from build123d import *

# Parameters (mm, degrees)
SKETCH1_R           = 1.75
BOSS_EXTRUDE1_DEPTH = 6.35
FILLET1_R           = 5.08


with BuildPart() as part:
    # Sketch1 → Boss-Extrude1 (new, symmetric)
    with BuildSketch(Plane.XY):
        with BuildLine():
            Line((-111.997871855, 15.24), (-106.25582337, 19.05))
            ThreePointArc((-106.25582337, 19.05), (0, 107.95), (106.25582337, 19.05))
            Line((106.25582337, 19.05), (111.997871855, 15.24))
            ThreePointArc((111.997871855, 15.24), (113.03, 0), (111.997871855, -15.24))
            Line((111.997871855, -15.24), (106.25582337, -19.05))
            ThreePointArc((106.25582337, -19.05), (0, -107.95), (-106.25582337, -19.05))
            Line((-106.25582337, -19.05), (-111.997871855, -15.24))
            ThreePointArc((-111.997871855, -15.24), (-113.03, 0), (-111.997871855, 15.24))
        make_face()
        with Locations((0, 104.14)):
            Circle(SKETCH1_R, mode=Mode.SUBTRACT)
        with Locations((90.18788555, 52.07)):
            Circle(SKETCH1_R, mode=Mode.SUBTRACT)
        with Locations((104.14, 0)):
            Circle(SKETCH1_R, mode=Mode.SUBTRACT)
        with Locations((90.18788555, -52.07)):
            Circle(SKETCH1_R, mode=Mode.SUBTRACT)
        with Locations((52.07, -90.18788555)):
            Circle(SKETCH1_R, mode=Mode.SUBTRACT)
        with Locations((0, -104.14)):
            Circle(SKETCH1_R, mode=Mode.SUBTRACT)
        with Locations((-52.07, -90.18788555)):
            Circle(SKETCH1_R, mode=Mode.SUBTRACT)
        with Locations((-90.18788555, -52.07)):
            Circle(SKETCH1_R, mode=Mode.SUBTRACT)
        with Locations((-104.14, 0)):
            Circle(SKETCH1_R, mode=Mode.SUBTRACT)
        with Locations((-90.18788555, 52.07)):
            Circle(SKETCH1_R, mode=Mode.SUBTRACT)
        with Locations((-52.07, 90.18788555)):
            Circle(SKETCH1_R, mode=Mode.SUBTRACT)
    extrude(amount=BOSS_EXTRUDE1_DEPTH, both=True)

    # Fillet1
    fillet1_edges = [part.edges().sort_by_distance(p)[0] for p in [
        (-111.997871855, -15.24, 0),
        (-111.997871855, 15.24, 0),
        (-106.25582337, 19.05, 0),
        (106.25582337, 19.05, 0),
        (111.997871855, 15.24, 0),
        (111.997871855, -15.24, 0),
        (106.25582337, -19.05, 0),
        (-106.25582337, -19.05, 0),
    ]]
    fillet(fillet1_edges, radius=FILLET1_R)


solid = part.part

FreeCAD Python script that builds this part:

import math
import FreeCAD as App
import Part
import Sketcher
from FreeCAD import Vector
Q = App.Units.Quantity


def edges_at(feature, points):
    """Names of the edges that pass closest to the given points."""
    edges = feature.Shape.Edges
    near = lambda p: min(range(len(edges)), key=lambda i: edges[i].distToShape(Part.Vertex(*p))[0])
    return sorted({f"Edge{near(p) + 1}" for p in points})

doc = App.newDocument("Part")
body = doc.addObject("PartDesign::Body", "Body")

sketch1 = body.newObject("Sketcher::SketchObject", "Sketch")
sketch1.AttachmentSupport = (doc.getObject("XY_Plane"), [""])
sketch1.MapMode = "FlatFace"
sketch1.addGeometry([
    Part.LineSegment(Vector(-106.3, 19.1, 0), Vector(-112, 15.2, 0)),
    Part.ArcOfCircle(Part.Circle(Vector(0, 0, 0), Vector(0, 0, 1), 113), math.radians(172.25), math.radians(187.75)),
    Part.LineSegment(Vector(-112, -15.2, 0), Vector(-106.3, -19.1, 0)),
    Part.ArcOfCircle(Part.Circle(Vector(0, 0, 0), Vector(0, 0, 1), 108), math.radians(-170), math.radians(-10)),
    Part.LineSegment(Vector(106.3, -19.1, 0), Vector(112, -15.2, 0)),
    Part.ArcOfCircle(Part.Circle(Vector(0, 0, 0), Vector(0, 0, 1), 113), math.radians(-7.75), math.radians(7.75)),
    Part.LineSegment(Vector(112, 15.2, 0), Vector(106.3, 19.1, 0)),
    Part.ArcOfCircle(Part.Circle(Vector(0, 0, 0), Vector(0, 0, 1), 108), math.radians(10), math.radians(170)),
    Part.Circle(Vector(52.1, -90.2, 0), Vector(0, 0, 1), 1.8),
    Part.Circle(Vector(0, -104.1, 0), Vector(0, 0, 1), 1.8),
    Part.Circle(Vector(90.2, -52.1, 0), Vector(0, 0, 1), 1.8),
    Part.Circle(Vector(104.1, 0, 0), Vector(0, 0, 1), 1.8),
    Part.Circle(Vector(-52.1, -90.2, 0), Vector(0, 0, 1), 1.8),
    Part.Circle(Vector(-90.2, -52.1, 0), Vector(0, 0, 1), 1.8),
    Part.Circle(Vector(-104.1, 0, 0), Vector(0, 0, 1), 1.8),
    Part.Circle(Vector(90.2, 52.1, 0), Vector(0, 0, 1), 1.8),
    Part.Circle(Vector(0, 104.1, 0), Vector(0, 0, 1), 1.8),
    Part.Circle(Vector(-90.2, 52.1, 0), Vector(0, 0, 1), 1.8),
    Part.Circle(Vector(-52.1, 90.2, 0), Vector(0, 0, 1), 1.8),
], False)
sketch1.addConstraint([
    Sketcher.Constraint("Coincident", 0, 2, 1, 1),
    Sketcher.Constraint("Coincident", 1, 2, 2, 1),
    Sketcher.Constraint("Coincident", 2, 2, 3, 1),
    Sketcher.Constraint("Coincident", 3, 2, 4, 1),
    Sketcher.Constraint("Coincident", 4, 2, 5, 1),
    Sketcher.Constraint("Coincident", 5, 2, 6, 1),
    Sketcher.Constraint("Coincident", 6, 2, 7, 1),
    Sketcher.Constraint("Coincident", 7, 2, 0, 1),
    Sketcher.Constraint("Coincident", 1, 3, -1, 1),
    Sketcher.Constraint("Coincident", 3, 3, -1, 1),
    Sketcher.Constraint("Coincident", 5, 3, -1, 1),
    Sketcher.Constraint("Coincident", 7, 3, -1, 1),
    Sketcher.Constraint("Equal", 1, 5),
    Sketcher.Constraint("Equal", 3, 7),
    Sketcher.Constraint("Equal", 8, 9),
    Sketcher.Constraint("Equal", 9, 10),
    Sketcher.Constraint("Equal", 10, 11),
    Sketcher.Constraint("Equal", 11, 12),
    Sketcher.Constraint("Equal", 12, 13),
    Sketcher.Constraint("Equal", 13, 14),
    Sketcher.Constraint("Equal", 14, 15),
    Sketcher.Constraint("Equal", 15, 16),
    Sketcher.Constraint("Equal", 16, 17),
    Sketcher.Constraint("Equal", 17, 18),
    Sketcher.Constraint("Symmetric", 11, 3, 14, 3, -1, 1),
    Sketcher.Constraint("Symmetric", 13, 3, 15, 3, -1, 1),
    Sketcher.Constraint("Symmetric", 9, 3, 16, 3, -1, 1),
    Sketcher.Constraint("Symmetric", 10, 3, 17, 3, -1, 1),
    Sketcher.Constraint("Symmetric", 8, 3, 18, 3, -1, 1),
    Sketcher.Constraint("Symmetric", 8, 3, 12, 3, -2),
    Sketcher.Constraint("Symmetric", 10, 3, 13, 3, -2),
    Sketcher.Constraint("PointOnObject", 9, 3, -2),
    Sketcher.Constraint("PointOnObject", 11, 3, -1),
    Sketcher.Constraint("Parallel", 0, 4),
    Sketcher.Constraint("Parallel", 2, 6),
    Sketcher.Constraint("Horizontal", 2, 2, 3, 2),
    Sketcher.Constraint("Horizontal", 1, 2, 4, 2),
    Sketcher.Constraint("Horizontal", 0, 2, 5, 2),
    Sketcher.Constraint("Vertical", 0, 2, 1, 2),
    Sketcher.Constraint("Radius", 1, Q("4.45 in")),
    Sketcher.Constraint("Radius", 3, Q("4.25 in")),
    Sketcher.Constraint("DistanceY", 9, 3, -1, 1, Q("4.1 in")),
    Sketcher.Constraint("DistanceX", -1, 1, 11, 3, Q("4.1 in")),
    Sketcher.Constraint("DistanceY", -1, 1, 0, 2, Q("0.6 in")),
    Sketcher.Constraint("DistanceX", 12, 3, 8, 3, Q("4.1 in")),
    Sketcher.Constraint("DistanceY", 10, 3, 15, 3, Q("4.1 in")),
    Sketcher.Constraint("DistanceY", 13, 3, 2, 2, Q("1.3 in")),
    Sketcher.Constraint("Diameter", 8, Q("3.5 mm")),
    Sketcher.Constraint("DistanceY", 8, 3, -1, 1, Q("90.187886 mm")),
    Sketcher.Constraint("DistanceX", -1, 1, 10, 3, Q("90.187886 mm")),
])
pad1 = body.newObject("PartDesign::Pad", "Pad")
pad1.Profile = sketch1
pad1.Length = Q("0.5 in")
pad1.Midplane = True
doc.recompute()

fillet = body.newObject("PartDesign::Fillet", "Fillet")
fillet.Base = (pad1, edges_at(pad1, [
    (-111.998, -15.24, 0),
    (-111.998, 15.24, 0),
    (-106.256, 19.05, 0),
    (106.256, 19.05, 0),
    (111.998, 15.24, 0),
    (111.998, -15.24, 0),
    (106.256, -19.05, 0),
    (-106.256, -19.05, 0),
]))
fillet.Radius = Q("0.2 in")

doc.recompute()
